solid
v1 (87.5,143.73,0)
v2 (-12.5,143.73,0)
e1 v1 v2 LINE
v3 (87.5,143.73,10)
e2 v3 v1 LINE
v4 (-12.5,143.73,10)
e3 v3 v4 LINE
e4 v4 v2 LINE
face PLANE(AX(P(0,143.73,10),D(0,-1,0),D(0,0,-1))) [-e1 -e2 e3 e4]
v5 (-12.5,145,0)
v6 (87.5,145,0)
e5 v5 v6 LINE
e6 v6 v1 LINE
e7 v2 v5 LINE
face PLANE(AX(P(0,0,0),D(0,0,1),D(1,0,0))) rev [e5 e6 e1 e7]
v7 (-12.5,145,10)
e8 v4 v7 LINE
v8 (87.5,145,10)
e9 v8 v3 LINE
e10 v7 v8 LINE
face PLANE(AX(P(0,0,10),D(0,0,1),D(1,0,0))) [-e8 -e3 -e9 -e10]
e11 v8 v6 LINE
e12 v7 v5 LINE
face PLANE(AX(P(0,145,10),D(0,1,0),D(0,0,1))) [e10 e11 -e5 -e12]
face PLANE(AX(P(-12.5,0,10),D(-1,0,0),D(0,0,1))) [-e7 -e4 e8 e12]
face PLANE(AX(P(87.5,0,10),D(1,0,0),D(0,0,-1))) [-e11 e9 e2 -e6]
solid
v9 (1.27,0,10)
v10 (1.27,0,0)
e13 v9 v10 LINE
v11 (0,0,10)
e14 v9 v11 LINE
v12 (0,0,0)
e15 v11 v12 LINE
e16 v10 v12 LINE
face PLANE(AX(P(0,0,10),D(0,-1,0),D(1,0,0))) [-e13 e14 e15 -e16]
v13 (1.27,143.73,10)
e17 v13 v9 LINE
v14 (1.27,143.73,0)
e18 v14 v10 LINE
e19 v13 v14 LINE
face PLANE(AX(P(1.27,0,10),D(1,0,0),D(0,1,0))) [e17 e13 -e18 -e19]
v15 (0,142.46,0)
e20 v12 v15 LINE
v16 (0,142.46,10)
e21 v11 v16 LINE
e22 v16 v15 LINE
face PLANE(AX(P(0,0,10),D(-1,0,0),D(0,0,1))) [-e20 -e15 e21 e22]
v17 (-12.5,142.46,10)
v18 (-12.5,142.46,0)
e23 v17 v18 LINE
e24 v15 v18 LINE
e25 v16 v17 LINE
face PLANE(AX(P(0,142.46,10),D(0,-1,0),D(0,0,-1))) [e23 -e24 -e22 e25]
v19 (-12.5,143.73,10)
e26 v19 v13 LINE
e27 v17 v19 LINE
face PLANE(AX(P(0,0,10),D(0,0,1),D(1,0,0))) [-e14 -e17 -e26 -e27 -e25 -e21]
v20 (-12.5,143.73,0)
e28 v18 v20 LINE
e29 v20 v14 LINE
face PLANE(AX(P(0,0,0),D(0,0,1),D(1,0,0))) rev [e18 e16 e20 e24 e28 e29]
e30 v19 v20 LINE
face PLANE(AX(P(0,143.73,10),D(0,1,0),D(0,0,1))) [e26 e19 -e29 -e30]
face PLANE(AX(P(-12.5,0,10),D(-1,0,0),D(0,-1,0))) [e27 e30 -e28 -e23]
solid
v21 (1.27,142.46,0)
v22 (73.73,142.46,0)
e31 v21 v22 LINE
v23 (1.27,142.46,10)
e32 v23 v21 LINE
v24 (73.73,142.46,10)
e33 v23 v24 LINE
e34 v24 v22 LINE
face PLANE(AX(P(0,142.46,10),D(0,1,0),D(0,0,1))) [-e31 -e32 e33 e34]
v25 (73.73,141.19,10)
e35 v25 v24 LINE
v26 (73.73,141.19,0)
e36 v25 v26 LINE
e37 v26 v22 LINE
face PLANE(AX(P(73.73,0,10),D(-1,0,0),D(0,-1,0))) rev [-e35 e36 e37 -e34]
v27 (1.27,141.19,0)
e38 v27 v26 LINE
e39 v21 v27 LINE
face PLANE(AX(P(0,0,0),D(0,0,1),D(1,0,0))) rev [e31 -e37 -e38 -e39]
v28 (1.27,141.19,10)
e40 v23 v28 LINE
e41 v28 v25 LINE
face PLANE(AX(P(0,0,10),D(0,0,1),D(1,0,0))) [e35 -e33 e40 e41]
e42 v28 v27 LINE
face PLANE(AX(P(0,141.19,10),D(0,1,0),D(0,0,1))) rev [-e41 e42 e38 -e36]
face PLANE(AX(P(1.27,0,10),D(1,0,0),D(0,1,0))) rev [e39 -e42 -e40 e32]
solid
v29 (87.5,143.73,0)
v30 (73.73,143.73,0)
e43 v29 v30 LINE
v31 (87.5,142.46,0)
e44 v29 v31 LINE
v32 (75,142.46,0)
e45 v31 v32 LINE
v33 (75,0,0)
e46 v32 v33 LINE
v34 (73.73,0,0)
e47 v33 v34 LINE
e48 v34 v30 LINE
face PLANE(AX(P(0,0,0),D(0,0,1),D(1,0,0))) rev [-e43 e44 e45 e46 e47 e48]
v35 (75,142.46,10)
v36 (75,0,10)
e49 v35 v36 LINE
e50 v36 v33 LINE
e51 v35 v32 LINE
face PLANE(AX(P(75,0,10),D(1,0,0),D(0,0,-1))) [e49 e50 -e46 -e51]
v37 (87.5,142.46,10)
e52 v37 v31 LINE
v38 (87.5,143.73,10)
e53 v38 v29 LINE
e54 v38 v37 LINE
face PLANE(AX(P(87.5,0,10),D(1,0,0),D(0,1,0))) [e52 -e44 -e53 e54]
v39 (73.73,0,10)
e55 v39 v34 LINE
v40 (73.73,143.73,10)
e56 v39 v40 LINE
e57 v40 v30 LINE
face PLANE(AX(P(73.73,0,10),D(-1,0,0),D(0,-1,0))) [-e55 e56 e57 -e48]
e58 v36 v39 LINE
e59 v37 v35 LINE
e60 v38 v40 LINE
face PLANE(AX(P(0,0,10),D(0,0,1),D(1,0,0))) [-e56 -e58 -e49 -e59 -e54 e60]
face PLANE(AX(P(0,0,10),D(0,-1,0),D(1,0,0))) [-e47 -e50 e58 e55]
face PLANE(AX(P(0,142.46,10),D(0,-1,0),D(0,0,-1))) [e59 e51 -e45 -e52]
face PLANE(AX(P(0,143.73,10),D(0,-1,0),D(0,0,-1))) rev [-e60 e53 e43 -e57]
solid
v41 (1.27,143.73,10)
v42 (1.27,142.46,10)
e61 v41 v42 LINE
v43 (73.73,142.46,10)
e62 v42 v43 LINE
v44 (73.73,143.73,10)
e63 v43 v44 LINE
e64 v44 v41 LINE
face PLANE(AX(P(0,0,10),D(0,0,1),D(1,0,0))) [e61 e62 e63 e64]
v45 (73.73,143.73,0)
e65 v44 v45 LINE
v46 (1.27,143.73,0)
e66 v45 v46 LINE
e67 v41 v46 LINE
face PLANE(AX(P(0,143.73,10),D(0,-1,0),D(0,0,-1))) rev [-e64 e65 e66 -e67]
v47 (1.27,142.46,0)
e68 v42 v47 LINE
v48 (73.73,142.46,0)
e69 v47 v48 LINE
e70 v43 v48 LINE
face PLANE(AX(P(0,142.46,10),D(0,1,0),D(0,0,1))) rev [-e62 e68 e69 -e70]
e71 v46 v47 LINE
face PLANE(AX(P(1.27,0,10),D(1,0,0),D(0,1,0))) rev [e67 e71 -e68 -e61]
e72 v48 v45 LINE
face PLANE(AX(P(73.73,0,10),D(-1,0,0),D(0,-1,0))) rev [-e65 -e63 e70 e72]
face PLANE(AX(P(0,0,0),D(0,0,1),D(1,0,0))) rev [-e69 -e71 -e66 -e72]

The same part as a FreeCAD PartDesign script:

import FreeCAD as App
import Part
import Sketcher
from FreeCAD import Vector


def add_polygon(sketch, points):
    """Adds a closed chain of lines whose ends are joined by coincident constraints."""
    first, n = sketch.GeometryCount, len(points)
    for a, b in zip(points, points[1:] + points[:1]):
        sketch.addGeometry(Part.LineSegment(App.Vector(*a, 0), App.Vector(*b, 0)), False)
    for i in range(n):
        sketch.addConstraint(Sketcher.Constraint("Coincident", first + i, 2, first + (i + 1) % n, 1))

doc = App.newDocument("Part")
params = doc.addObject("Spreadsheet::Sheet", "Params")
for row, (alias, value) in enumerate([
    ("sketch1_width", "12.5 mm"),
    ("sketch1_width2", "1.27 mm"),
    ("sketch1_height", "143.73 mm"),
    ("pad1_length", "10 mm"),
    ("sketch2_width", "12.5 mm"),
    ("sketch2_width2", "1.27 mm"),
    ("sketch2_height", "142.46 mm"),
    ("pad2_length", "10 mm"),
    ("sketch3_width", "72.46 mm"),
    ("sketch3_height", "1.27 mm"),
    ("pad3_length", "10 mm"),
    ("sketch4_width", "100 mm"),
    ("sketch4_height", "1.27 mm"),
    ("pad4_length", "10 mm"),
    ("sketch5_width", "72.46 mm"),
    ("sketch5_height", "1.27 mm"),
    ("pad5_length", "10 mm"),
], start=1):
    params.set(f"A{row}", alias)
    params.set(f"B{row}", "=" + value)
    params.setAlias(f"B{row}", alias)

body = doc.addObject("PartDesign::Body", "Body")

# Sketch on XY plane
sketch1 = doc.addObject("Sketcher::SketchObject", "Sketch")
body.addObject(sketch1)
sketch1.AttachmentSupport = (doc.XY_Plane, [""])
sketch1.MapMode = "FlatFace"
add_polygon(sketch1, [(0, 0), (1.3, 0), (1.3, 143.7), (-12.5, 143.7), (-12.5, 142.5), (0, 142.5)])  # lines 0-5
sketch1.addConstraint([
    Sketcher.Constraint("Horizontal", 0),
    Sketcher.Constraint("Vertical", 1),
    Sketcher.Constraint("Horizontal", 2),
    Sketcher.Constraint("Vertical", 3),
    Sketcher.Constraint("Horizontal", 4),
    Sketcher.Constraint("Vertical", 5),
    Sketcher.Constraint("Coincident", 5, 2, -1, 1),
    Sketcher.Constraint("Equal", 0, 3),
    Sketcher.Constraint("DistanceX", 4, 1, 4, 2, 12.5),
    Sketcher.Constraint("DistanceX", 0, 1, 0, 2, 1.27),
    Sketcher.Constraint("DistanceY", 1, 1, 1, 2, 143.73),
])
sketch1.setExpression("Constraints[14]", "Params.sketch1_width")
sketch1.setExpression("Constraints[15]", "Params.sketch1_width2")
sketch1.setExpression("Constraints[16]", "Params.sketch1_height")
pad1 = doc.addObject("PartDesign::Pad", "Pad")
body.addObject(pad1)
pad1.Profile = sketch1
pad1.setExpression("Length", "Params.pad1_length")
body2 = doc.addObject("PartDesign::Body", "Body001")

# Sketch on XY plane
sketch2 = doc.addObject("Sketcher::SketchObject", "Sketch001")
body2.addObject(sketch2)
sketch2.AttachmentSupport = (doc.getObject("XY_Plane001"), [""])
sketch2.MapMode = "FlatFace"
add_polygon(sketch2, [(73.7, 0), (75, 0), (75, 142.5), (87.5, 142.5), (87.5, 143.7), (73.7, 143.7)])  # lines 0-5
sketch2.addConstraint([
    Sketcher.Constraint("Horizontal", 0),
    Sketcher.Constraint("Vertical", 1),
    Sketcher.Constraint("Horizontal", 2),
    Sketcher.Constraint("Vertical", 3),
    Sketcher.Constraint("Horizontal", 4),
    Sketcher.Constraint("Vertical", 5),
    Sketcher.Constraint("PointOnObject", 0, 2, -1),
    Sketcher.Constraint("Equal", 0, 3),
    Sketcher.Constraint("DistanceX", 2, 1, 2, 2, 12.5),
    Sketcher.Constraint("DistanceX", -1, 1, 0, 2, 75.0),
    Sketcher.Constraint("DistanceX", 0, 1, 0, 2, 1.27),
    Sketcher.Constraint("DistanceY", 1, 1, 1, 2, 142.46),
])
sketch2.setExpression("Constraints[14]", "Params.sketch2_width")
sketch2.setExpression("Constraints[16]", "Params.sketch2_width2")
sketch2.setExpression("Constraints[17]", "Params.sketch2_height")
pad2 = doc.addObject("PartDesign::Pad", "Pad001")
body2.addObject(pad2)
pad2.Profile = sketch2
pad2.setExpression("Length", "Params.pad2_length")
body3 = doc.addObject("PartDesign::Body", "Body002")

# Sketch on XY plane
sketch3 = doc.addObject("Sketcher::SketchObject", "Sketch002")
body3.addObject(sketch3)
sketch3.AttachmentSupport = (doc.getObject("XY_Plane002"), [""])
sketch3.MapMode = "FlatFace"
add_polygon(sketch3, [(1.3, 143.7), (1.3, 142.5), (73.7, 142.5), (73.7, 143.7)])  # lines 0-3
sketch3.addConstraint([
    Sketcher.Constraint("Vertical", 0),
    Sketcher.Constraint("Horizontal", 1),
    Sketcher.Constraint("Vertical", 2),
    Sketcher.Constraint("Horizontal", 3),
    Sketcher.Constraint("DistanceX", 1, 1, 1, 2, 72.46),
    Sketcher.Constraint("DistanceY", 0, 2, 0, 1, 1.27),
    Sketcher.Constraint("DistanceX", -1, 1, 0, 2, 1.27),
    Sketcher.Constraint("DistanceY", -1, 1, 0, 2, 142.46),
])
sketch3.setExpression("Constraints[8]", "Params.sketch3_width")
sketch3.setExpression("Constraints[9]", "Params.sketch3_height")
pad3 = doc.addObject("PartDesign::Pad", "Pad002")
body3.addObject(pad3)
pad3.Profile = sketch3
pad3.setExpression("Length", "Params.pad3_length")
body4 = doc.addObject("PartDesign::Body", "Body003")

# Sketch on XY plane
sketch4 = doc.addObject("Sketcher::SketchObject", "Sketch003")
body4.addObject(sketch4)
sketch4.AttachmentSupport = (doc.getObject("XY_Plane003"), [""])
sketch4.MapMode = "FlatFace"
add_polygon(sketch4, [(-12.5, 145), (-12.5, 143.7), (87.5, 143.7), (87.5, 145)])  # lines 0-3
sketch4.addConstraint([
    Sketcher.Constraint("Vertical", 0),
    Sketcher.Constraint("Horizontal", 1),
    Sketcher.Constraint("Vertical", 2),
    Sketcher.Constraint("Horizontal", 3),
    Sketcher.Constraint("DistanceX", 1, 1, 1, 2, 100.0),
    Sketcher.Constraint("DistanceY", -1, 1, 2, 2, 145.0),
    Sketcher.Constraint("DistanceY", 0, 2, 0, 1, 1.27),
    Sketcher.Constraint("DistanceX", 0, 2, -1, 1, 12.5),
])
sketch4.setExpression("Constraints[8]", "Params.sketch4_width")
sketch4.setExpression("Constraints[10]", "Params.sketch4_height")
pad4 = doc.addObject("PartDesign::Pad", "Pad003")
body4.addObject(pad4)
pad4.Profile = sketch4
pad4.setExpression("Length", "Params.pad4_length")
body5 = doc.addObject("PartDesign::Body", "Body004")

# Sketch on XY plane
sketch5 = doc.addObject("Sketcher::SketchObject", "Sketch004")
body5.addObject(sketch5)
sketch5.AttachmentSupport = (doc.getObject("XY_Plane004"), [""])
sketch5.MapMode = "FlatFace"
add_polygon(sketch5, [(1.3, 142.5), (1.3, 141.2), (73.7, 141.2), (73.7, 142.5)])  # lines 0-3
sketch5.addConstraint([
    Sketcher.Constraint("Vertical", 0),
    Sketcher.Constraint("Horizontal", 1),
    Sketcher.Constraint("Vertical", 2),
    Sketcher.Constraint("Horizontal", 3),
    Sketcher.Constraint("DistanceX", 1, 1, 1, 2, 72.46),
    Sketcher.Constraint("DistanceY", 0, 2, 0, 1, 1.27),
    Sketcher.Constraint("DistanceX", -1, 1, 0, 2, 1.27),
    Sketcher.Constraint("DistanceY", -1, 1, 0, 2, 141.19),
])
sketch5.setExpression("Constraints[8]", "Params.sketch5_width")
sketch5.setExpression("Constraints[9]", "Params.sketch5_height")
pad5 = doc.addObject("PartDesign::Pad", "Pad004")
body5.addObject(pad5)
pad5.Profile = sketch5
pad5.setExpression("Length", "Params.pad5_length")

doc.recompute()
